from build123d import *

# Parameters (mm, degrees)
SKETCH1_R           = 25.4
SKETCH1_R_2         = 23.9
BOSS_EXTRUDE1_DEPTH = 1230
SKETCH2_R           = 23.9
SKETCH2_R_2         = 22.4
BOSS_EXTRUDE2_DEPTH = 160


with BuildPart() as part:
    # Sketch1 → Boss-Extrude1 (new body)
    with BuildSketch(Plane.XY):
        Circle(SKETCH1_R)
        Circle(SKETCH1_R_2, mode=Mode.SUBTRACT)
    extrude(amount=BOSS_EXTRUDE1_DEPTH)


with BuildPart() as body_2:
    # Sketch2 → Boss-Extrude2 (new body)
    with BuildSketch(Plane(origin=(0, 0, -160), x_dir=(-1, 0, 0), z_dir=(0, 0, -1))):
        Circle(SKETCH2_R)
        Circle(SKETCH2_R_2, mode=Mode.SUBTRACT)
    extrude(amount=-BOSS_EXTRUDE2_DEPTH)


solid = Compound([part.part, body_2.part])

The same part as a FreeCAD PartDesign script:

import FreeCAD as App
import Part
import Sketcher
Q = App.Units.Quantity

doc = App.newDocument("Part")
body = doc.addObject("PartDesign::Body", "Body")

# Sketch on XY plane
sketch1 = body.newObject("Sketcher::SketchObject", "Sketch")
sketch1.AttachmentSupport = (doc.getObject("XY_Plane"), [""])
sketch1.MapMode = "FlatFace"
sketch1.addGeometry([
    Part.Circle(App.Vector(0, 0, 0), App.Vector(0, 0, 1), 25.4),
    Part.Circle(App.Vector(0, 0, 0), App.Vector(0, 0, 1), 23.9),
], False)
sketch1.addConstraint([
    Sketcher.Constraint("Coincident", 0, 3, -1, 1),
    Sketcher.Constraint("Coincident", 1, 3, -1, 1),
    Sketcher.Constraint("Diameter", 0, Q("50.8 mm")),
    Sketcher.Constraint("Diameter", 1, Q("47.8 mm")),
])
pad1 = body.newObject("PartDesign::Pad", "Pad")
pad1.Profile = sketch1
pad1.Length = 1230
body2 = doc.addObject("PartDesign::Body", "Body001")

# Sketch on XY plane
sketch2 = body2.newObject("Sketcher::SketchObject", "Sketch001")
sketch2.AttachmentSupport = (doc.getObject("XY_Plane001"), [""])
sketch2.MapMode = "FlatFace"
sketch2.AttachmentOffset = App.Placement(App.Vector(0, 0, -160), App.Rotation())
sketch2.addGeometry([
    Part.Circle(App.Vector(0, 0, 0), App.Vector(0, 0, 1), 23.9),
    Part.Circle(App.Vector(0, 0, 0), App.Vector(0, 0, 1), 22.4),
], False)
sketch2.addConstraint([
    Sketcher.Constraint("Coincident", 0, 3, -1, 1),
    Sketcher.Constraint("Coincident", 1, 3, -1, 1),
    Sketcher.Constraint("Diameter", 0, Q("47.8 mm")),
    Sketcher.Constraint("Diameter", 1, Q("44.8 mm")),
])
pad2 = body2.newObject("PartDesign::Pad", "Pad001")
pad2.Profile = sketch2
pad2.Length = 160

doc.recompute()
